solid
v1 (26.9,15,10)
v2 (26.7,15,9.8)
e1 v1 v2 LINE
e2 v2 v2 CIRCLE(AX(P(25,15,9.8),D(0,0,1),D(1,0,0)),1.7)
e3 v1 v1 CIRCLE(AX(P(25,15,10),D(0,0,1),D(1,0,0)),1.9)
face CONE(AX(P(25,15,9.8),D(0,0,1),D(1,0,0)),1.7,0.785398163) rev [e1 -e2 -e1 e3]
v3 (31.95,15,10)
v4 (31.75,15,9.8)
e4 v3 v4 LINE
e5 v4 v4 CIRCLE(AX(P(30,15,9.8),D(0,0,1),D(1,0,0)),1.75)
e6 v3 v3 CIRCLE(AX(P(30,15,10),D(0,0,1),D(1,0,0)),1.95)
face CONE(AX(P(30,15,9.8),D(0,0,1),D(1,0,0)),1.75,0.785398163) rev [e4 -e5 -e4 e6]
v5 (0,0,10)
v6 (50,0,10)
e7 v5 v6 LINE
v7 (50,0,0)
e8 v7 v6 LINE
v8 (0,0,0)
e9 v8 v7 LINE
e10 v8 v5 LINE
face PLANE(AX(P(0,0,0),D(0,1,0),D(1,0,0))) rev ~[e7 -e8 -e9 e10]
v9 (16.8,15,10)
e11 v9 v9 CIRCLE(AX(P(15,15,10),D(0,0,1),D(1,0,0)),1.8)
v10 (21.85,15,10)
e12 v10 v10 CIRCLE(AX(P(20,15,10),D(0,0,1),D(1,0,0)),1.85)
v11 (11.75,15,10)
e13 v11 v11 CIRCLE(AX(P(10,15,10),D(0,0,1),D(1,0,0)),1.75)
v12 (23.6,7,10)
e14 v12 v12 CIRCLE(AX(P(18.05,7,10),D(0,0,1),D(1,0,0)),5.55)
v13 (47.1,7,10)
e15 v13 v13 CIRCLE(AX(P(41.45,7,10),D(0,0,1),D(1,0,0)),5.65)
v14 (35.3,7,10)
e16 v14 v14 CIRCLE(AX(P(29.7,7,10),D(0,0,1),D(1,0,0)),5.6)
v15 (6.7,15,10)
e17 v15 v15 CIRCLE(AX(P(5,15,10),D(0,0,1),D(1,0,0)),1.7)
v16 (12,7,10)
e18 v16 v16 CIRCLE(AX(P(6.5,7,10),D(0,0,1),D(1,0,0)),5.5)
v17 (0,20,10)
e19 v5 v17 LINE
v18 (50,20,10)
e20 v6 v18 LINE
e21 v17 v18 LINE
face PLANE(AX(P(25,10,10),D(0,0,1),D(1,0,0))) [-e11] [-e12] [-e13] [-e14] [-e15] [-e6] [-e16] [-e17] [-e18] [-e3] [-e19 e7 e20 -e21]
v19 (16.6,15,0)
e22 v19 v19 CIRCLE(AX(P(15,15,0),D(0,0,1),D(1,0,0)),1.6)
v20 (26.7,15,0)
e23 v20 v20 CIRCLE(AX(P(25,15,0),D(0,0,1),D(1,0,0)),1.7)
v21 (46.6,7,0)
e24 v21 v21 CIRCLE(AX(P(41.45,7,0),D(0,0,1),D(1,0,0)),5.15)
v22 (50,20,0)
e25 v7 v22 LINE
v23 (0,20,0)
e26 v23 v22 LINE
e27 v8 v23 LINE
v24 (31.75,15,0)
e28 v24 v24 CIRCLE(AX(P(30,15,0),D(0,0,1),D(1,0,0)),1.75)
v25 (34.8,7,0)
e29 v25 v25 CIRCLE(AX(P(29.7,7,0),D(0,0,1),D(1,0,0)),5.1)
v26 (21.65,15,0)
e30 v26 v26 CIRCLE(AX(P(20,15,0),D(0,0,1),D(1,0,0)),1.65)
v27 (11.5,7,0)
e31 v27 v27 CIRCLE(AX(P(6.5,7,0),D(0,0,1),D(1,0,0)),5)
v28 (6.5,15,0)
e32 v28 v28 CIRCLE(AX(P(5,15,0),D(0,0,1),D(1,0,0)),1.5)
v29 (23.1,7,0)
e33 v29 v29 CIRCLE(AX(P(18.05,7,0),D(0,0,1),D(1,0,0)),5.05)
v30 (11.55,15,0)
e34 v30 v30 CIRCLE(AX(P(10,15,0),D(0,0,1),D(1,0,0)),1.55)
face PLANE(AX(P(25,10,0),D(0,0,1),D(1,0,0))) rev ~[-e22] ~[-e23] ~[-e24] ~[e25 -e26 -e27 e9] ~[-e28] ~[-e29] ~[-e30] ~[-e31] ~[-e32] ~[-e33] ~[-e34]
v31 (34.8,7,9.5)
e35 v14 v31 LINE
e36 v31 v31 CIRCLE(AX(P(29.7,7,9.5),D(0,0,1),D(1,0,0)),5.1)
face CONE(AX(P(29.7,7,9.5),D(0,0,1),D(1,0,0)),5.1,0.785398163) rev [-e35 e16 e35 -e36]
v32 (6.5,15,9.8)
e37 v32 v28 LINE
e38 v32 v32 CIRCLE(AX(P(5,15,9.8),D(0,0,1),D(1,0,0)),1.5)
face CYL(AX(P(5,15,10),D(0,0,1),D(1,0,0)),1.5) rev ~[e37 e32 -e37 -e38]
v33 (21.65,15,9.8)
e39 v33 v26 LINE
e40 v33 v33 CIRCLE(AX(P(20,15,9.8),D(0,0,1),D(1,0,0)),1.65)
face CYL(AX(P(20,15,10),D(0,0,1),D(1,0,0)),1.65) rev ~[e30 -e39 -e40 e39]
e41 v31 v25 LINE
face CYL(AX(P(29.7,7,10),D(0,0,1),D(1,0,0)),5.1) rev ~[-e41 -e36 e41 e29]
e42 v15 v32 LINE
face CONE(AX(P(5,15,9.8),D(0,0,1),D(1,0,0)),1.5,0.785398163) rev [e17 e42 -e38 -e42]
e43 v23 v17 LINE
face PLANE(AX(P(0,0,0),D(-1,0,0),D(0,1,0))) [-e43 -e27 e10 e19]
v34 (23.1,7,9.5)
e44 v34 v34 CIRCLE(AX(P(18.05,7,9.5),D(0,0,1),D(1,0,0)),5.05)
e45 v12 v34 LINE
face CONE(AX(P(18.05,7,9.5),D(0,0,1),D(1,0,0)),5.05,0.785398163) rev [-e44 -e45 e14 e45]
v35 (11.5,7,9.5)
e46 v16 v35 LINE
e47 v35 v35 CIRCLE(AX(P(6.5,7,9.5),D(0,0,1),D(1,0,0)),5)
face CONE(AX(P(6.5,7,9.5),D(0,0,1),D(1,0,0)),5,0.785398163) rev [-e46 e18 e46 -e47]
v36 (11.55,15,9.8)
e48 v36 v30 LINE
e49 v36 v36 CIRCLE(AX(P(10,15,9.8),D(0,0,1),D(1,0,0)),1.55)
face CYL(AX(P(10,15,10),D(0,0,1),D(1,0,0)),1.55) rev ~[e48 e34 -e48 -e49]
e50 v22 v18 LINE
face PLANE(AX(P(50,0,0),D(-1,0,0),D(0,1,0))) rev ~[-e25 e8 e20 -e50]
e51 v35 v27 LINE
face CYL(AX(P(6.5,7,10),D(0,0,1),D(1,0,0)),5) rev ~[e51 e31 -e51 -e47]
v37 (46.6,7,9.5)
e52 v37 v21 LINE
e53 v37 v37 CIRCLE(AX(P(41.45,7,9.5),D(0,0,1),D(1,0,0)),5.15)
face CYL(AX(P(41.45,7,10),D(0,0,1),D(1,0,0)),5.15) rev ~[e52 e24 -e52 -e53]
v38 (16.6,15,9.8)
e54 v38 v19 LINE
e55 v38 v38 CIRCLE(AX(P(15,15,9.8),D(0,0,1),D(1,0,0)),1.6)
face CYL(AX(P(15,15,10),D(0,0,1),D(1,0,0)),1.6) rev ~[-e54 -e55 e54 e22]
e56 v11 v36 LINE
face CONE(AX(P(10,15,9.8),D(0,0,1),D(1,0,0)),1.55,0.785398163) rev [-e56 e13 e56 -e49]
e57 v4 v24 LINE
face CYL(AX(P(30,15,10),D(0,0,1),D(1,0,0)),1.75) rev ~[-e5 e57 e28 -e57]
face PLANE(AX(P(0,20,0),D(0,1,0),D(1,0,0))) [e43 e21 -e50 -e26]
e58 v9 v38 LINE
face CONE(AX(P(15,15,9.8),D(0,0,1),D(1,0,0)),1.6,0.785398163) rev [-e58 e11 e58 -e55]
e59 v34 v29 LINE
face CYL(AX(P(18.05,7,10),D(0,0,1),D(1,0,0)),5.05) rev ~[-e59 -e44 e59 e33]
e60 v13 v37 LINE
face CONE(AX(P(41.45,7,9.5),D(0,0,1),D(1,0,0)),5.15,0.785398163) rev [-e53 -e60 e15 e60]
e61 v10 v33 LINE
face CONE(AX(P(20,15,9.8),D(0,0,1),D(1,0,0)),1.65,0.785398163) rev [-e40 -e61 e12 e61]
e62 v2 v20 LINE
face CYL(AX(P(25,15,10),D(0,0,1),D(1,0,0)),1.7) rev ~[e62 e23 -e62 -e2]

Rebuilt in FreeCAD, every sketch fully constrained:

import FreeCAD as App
import Part
import Sketcher

V = App.Vector
Q = App.Units.Quantity


def edges_at(feature, points):
    """Names of the edges that pass closest to the given points."""
    edges = feature.Shape.Edges
    near = lambda p: min(range(len(edges)), key=lambda i: edges[i].distToShape(Part.Vertex(*p))[0])
    return sorted({f"Edge{near(p) + 1}" for p in points})

doc = App.newDocument("Part")
body = doc.addObject("PartDesign::Body", "Body")

# Sketch on XY plane
sketch1 = body.newObject("Sketcher::SketchObject", "Sketch")
sketch1.AttachmentSupport = (doc.getObject("XY_Plane"), [""])
sketch1.MapMode = "FlatFace"
sketch1.addGeometry(Part.LineSegment(V(0, 20, 0), V(0, 0, 0)), False)
sketch1.addGeometry(Part.LineSegment(V(0, 0, 0), V(50, 0, 0)), False)
sketch1.addGeometry(Part.LineSegment(V(50, 0, 0), V(50, 20, 0)), False)
sketch1.addGeometry(Part.LineSegment(V(50, 20, 0), V(0, 20, 0)), False)
sketch1.addConstraint(Sketcher.Constraint("Coincident", 0, 2, 1, 1))
sketch1.addConstraint(Sketcher.Constraint("Coincident", 1, 2, 2, 1))
sketch1.addConstraint(Sketcher.Constraint("Coincident", 2, 2, 3, 1))
sketch1.addConstraint(Sketcher.Constraint("Coincident", 3, 2, 0, 1))
sketch1.addConstraint(Sketcher.Constraint("Vertical", 0))
sketch1.addConstraint(Sketcher.Constraint("Horizontal", 1))
sketch1.addConstraint(Sketcher.Constraint("Vertical", 2))
sketch1.addConstraint(Sketcher.Constraint("Horizontal", 3))
sketch1.addConstraint(Sketcher.Constraint("Coincident", 0, 2, -1, 1))
sketch1.addConstraint(Sketcher.Constraint("DistanceX", 1, 1, 1, 2, Q("50 mm")))
sketch1.addConstraint(Sketcher.Constraint("DistanceY", 0, 2, 0, 1, Q("20 mm")))
pad1 = body.newObject("PartDesign::Pad", "Pad")
pad1.Profile = sketch1
pad1.Length = 10

# Sketch on XY plane
sketch2 = body.newObject("Sketcher::SketchObject", "Sketch001")
sketch2.AttachmentSupport = (doc.getObject("XY_Plane"), [""])
sketch2.MapMode = "FlatFace"
sketch2.AttachmentOffset = App.Placement(V(0, 0, 10), App.Rotation())
sketch2.addGeometry(Part.Circle(V(5, 15, 0), V(0, 0, 1), 1.5), False)
sketch2.addGeometry(Part.Circle(V(10, 15, 0), V(0, 0, 1), 1.55), False)
sketch2.addGeometry(Part.Circle(V(15, 15, 0), V(0, 0, 1), 1.6), False)
sketch2.addGeometry(Part.Circle(V(25, 15, 0), V(0, 0, 1), 1.7), False)
sketch2.addGeometry(Part.Circle(V(30, 15, 0), V(0, 0, 1), 1.75), False)
sketch2.addGeometry(Part.Circle(V(20, 15, 0), V(0, 0, 1), 1.65), False)
sketch2.addGeometry(Part.Circle(V(6.5, 7, 0), V(0, 0, 1), 5), False)
sketch2.addGeometry(Part.Circle(V(18.05, 7, 0), V(0, 0, 1), 5.05), False)
sketch2.addGeometry(Part.Circle(V(29.7, 7, 0), V(0, 0, 1), 5.1), False)
sketch2.addGeometry(Part.Circle(V(41.45, 7, 0), V(0, 0, 1), 5.15), False)
sketch2.addConstraint(Sketcher.Constraint("Horizontal", 0, 3, 1, 3))
sketch2.addConstraint(Sketcher.Constraint("Horizontal", 1, 3, 2, 3))
sketch2.addConstraint(Sketcher.Constraint("Horizontal", 2, 3, 3, 3))
sketch2.addConstraint(Sketcher.Constraint("Horizontal", 3, 3, 4, 3))
sketch2.addConstraint(Sketcher.Constraint("Horizontal", 4, 3, 5, 3))
sketch2.addConstraint(Sketcher.Constraint("Horizontal", 6, 3, 7, 3))
sketch2.addConstraint(Sketcher.Constraint("Horizontal", 7, 3, 8, 3))
sketch2.addConstraint(Sketcher.Constraint("Horizontal", 8, 3, 9, 3))
sketch2.addConstraint(Sketcher.Constraint("Diameter", 0, Q("3 mm")))
sketch2.addConstraint(Sketcher.Constraint("Diameter", 6, Q("10 mm")))
sketch2.addConstraint(Sketcher.Constraint("Diameter", 1, Q("3.1 mm")))
sketch2.addConstraint(Sketcher.Constraint("Diameter", 2, Q("3.2 mm")))
sketch2.addConstraint(Sketcher.Constraint("Diameter", 3, Q("3.4 mm")))
sketch2.addConstraint(Sketcher.Constraint("Diameter", 4, Q("3.5 mm")))
sketch2.addConstraint(Sketcher.Constraint("Diameter", 5, Q("3.3 mm")))
sketch2.addConstraint(Sketcher.Constraint("Diameter", 7, Q("10.1 mm")))
sketch2.addConstraint(Sketcher.Constraint("Diameter", 8, Q("10.2 mm")))
sketch2.addConstraint(Sketcher.Constraint("Diameter", 9, Q("10.3 mm")))
sketch2.addConstraint(Sketcher.Constraint("DistanceX", -1, 1, 0, 3, Q("5 mm")))
sketch2.addConstraint(Sketcher.Constraint("DistanceY", -1, 1, 0, 3, Q("15 mm")))
sketch2.addConstraint(Sketcher.Constraint("DistanceX", -1, 1, 1, 3, Q("10 mm")))
sketch2.addConstraint(Sketcher.Constraint("DistanceX", -1, 1, 2, 3, Q("15 mm")))
sketch2.addConstraint(Sketcher.Constraint("DistanceX", -1, 1, 3, 3, Q("25 mm")))
sketch2.addConstraint(Sketcher.Constraint("DistanceX", -1, 1, 4, 3, Q("30 mm")))
sketch2.addConstraint(Sketcher.Constraint("DistanceX", -1, 1, 5, 3, Q("20 mm")))
sketch2.addConstraint(Sketcher.Constraint("DistanceY", -1, 1, 6, 3, Q("7 mm")))
sketch2.addConstraint(Sketcher.Constraint("DistanceX", -1, 1, 6, 3, Q("6.5 mm")))
sketch2.addConstraint(Sketcher.Constraint("DistanceX", -1, 1, 8, 3, Q("29.7 mm")))
sketch2.addConstraint(Sketcher.Constraint("DistanceX", 7, 3, 9, 3, Q("23.4 mm")))
sketch2.addConstraint(Sketcher.Constraint("DistanceX", -1, 1, 7, 3, Q("18.05 mm")))
pocket1 = body.newObject("PartDesign::Pocket", "Pocket")
pocket1.Profile = sketch2
pocket1.Type = "ThroughAll"
doc.recompute()

chamfer = body.newObject("PartDesign::Chamfer", "Chamfer")
chamfer.Base = (pocket1, edges_at(pocket1, [(1.5, 7, 10)]))
chamfer.Size = 0.5
doc.recompute()

chamfer2 = body.newObject("PartDesign::Chamfer", "Chamfer001")
chamfer2.Base = (chamfer, edges_at(chamfer, [(13, 7, 10), (24.6, 7, 10)]))
chamfer2.Size = 0.5
doc.recompute()

chamfer3 = body.newObject("PartDesign::Chamfer", "Chamfer002")
chamfer3.Base = (chamfer2, edges_at(chamfer2, [(36.3, 7, 10)]))
chamfer3.Size = 0.5
doc.recompute()

chamfer4 = body.newObject("PartDesign::Chamfer", "Chamfer003")
chamfer4.Base = (chamfer3, edges_at(chamfer3, [
    (3.5, 15, 10),
    (8.45, 15, 10),
    (13.4, 15, 10),
    (18.35, 15, 10),
    (23.3, 15, 10),
    (28.25, 15, 10),
]))
chamfer4.Size = 0.2

doc.recompute()
